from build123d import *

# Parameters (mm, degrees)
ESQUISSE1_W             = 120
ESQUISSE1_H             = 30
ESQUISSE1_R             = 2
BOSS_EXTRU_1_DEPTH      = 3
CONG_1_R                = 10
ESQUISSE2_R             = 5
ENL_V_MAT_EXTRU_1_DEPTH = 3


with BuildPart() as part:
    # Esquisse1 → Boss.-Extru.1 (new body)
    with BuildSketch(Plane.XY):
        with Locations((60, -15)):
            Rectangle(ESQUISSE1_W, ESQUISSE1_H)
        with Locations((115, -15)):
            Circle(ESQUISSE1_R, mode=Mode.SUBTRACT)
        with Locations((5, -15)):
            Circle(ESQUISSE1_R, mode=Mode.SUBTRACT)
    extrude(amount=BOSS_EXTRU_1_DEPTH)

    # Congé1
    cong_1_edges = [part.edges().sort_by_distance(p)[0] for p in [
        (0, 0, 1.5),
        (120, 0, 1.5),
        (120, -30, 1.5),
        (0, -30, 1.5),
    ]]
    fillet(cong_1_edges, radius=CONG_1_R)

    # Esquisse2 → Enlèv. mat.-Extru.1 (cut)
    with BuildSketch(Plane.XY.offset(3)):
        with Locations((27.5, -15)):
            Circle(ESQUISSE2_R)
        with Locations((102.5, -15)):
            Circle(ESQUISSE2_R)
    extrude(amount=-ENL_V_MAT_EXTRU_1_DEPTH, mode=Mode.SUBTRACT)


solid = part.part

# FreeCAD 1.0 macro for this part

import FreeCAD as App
import Part
import Sketcher


def edges_at(feature, points):
    """Names of the edges that pass closest to the given points."""
    edges = feature.Shape.Edges
    near = lambda p: min(range(len(edges)), key=lambda i: edges[i].distToShape(Part.Vertex(*p))[0])
    return sorted({f"Edge{near(p) + 1}" for p in points})


def add_polygon(sketch, points):
    """Adds a closed chain of lines whose ends are joined by coincident constraints."""
    first, n = sketch.GeometryCount, len(points)
    for a, b in zip(points, points[1:] + points[:1]):
        sketch.addGeometry(Part.LineSegment(App.Vector(*a, 0), App.Vector(*b, 0)), False)
    for i in range(n):
        sketch.addConstraint(Sketcher.Constraint("Coincident", first + i, 2, first + (i + 1) % n, 1))

doc = App.newDocument("Part")
body = doc.addObject("PartDesign::Body", "Body")

# Sketch on XY plane
sketch1 = doc.addObject("Sketcher::SketchObject", "Sketch")
body.addObject(sketch1)
sketch1.AttachmentSupport = (doc.XY_Plane, [""])
sketch1.MapMode = "FlatFace"
add_polygon(sketch1, [(0, 0), (0, -30), (120, -30), (120, 0)])  # lines 0-3
sketch1.addGeometry(Part.Circle(App.Vector(5, -15, 0), App.Vector(0, 0, 1), 2), False)  # 4
sketch1.addGeometry(Part.Circle(App.Vector(115, -15, 0), App.Vector(0, 0, 1), 2), False)  # 5
sketch1.addConstraint([
    Sketcher.Constraint("Vertical", 0),
    Sketcher.Constraint("Horizontal", 1),
    Sketcher.Constraint("Vertical", 2),
    Sketcher.Constraint("Horizontal", 3),
    Sketcher.Constraint("Coincident", 3, 2, -1, 1),
    Sketcher.Constraint("Equal", 4, 5),
    Sketcher.Constraint("Horizontal", 4, 3, 5, 3),
    Sketcher.Constraint("Diameter", 4, 4.0),
    Sketcher.Constraint("DistanceX", 1, 1, 1, 2, 120.0),
    Sketcher.Constraint("DistanceY", 0, 2, 0, 1, 30.0),
    Sketcher.Constraint("DistanceX", -1, 1, 4, 3, 5.0),
    Sketcher.Constraint("DistanceY", 4, 3, -1, 1, 15.0),
    Sketcher.Constraint("DistanceX", -1, 1, 5, 3, 115.0),
])
pad1 = doc.addObject("PartDesign::Pad", "Pad")
body.addObject(pad1)
pad1.Profile = sketch1
pad1.Length = 3
doc.recompute()

fillet = doc.addObject("PartDesign::Fillet", "Fillet")
body.addObject(fillet)
fillet.Base = (pad1, edges_at(pad1, [
    (0, 0, 1.5),
    (120, 0, 1.5),
    (120, -30, 1.5),
    (0, -30, 1.5),
]))
fillet.Radius = 10

# Sketch on XY plane
sketch2 = doc.addObject("Sketcher::SketchObject", "Sketch001")
body.addObject(sketch2)
sketch2.AttachmentSupport = (doc.XY_Plane, [""])
sketch2.MapMode = "FlatFace"
sketch2.AttachmentOffset = App.Placement(App.Vector(0, 0, 3), App.Rotation())
sketch2.addGeometry([
    Part.Circle(App.Vector(27.5, -15, 0), App.Vector(0, 0, 1), 5),
    Part.Circle(App.Vector(102.5, -15, 0), App.Vector(0, 0, 1), 5),
], False)
sketch2.addConstraint([
    Sketcher.Constraint("Equal", 0, 1),
    Sketcher.Constraint("Horizontal", 0, 3, 1, 3),
    Sketcher.Constraint("Diameter", 0, 10.0),
    Sketcher.Constraint("DistanceY", 0, 3, -1, 1, 15.0),
    Sketcher.Constraint("DistanceX", 0, 3, 1, 3, 75.0),
    Sketcher.Constraint("DistanceX", -1, 1, 0, 3, 27.5),
])
pocket1 = doc.addObject("PartDesign::Pocket", "Pocket")
body.addObject(pocket1)
pocket1.Profile = sketch2
pocket1.Length = 3

doc.recompute()
